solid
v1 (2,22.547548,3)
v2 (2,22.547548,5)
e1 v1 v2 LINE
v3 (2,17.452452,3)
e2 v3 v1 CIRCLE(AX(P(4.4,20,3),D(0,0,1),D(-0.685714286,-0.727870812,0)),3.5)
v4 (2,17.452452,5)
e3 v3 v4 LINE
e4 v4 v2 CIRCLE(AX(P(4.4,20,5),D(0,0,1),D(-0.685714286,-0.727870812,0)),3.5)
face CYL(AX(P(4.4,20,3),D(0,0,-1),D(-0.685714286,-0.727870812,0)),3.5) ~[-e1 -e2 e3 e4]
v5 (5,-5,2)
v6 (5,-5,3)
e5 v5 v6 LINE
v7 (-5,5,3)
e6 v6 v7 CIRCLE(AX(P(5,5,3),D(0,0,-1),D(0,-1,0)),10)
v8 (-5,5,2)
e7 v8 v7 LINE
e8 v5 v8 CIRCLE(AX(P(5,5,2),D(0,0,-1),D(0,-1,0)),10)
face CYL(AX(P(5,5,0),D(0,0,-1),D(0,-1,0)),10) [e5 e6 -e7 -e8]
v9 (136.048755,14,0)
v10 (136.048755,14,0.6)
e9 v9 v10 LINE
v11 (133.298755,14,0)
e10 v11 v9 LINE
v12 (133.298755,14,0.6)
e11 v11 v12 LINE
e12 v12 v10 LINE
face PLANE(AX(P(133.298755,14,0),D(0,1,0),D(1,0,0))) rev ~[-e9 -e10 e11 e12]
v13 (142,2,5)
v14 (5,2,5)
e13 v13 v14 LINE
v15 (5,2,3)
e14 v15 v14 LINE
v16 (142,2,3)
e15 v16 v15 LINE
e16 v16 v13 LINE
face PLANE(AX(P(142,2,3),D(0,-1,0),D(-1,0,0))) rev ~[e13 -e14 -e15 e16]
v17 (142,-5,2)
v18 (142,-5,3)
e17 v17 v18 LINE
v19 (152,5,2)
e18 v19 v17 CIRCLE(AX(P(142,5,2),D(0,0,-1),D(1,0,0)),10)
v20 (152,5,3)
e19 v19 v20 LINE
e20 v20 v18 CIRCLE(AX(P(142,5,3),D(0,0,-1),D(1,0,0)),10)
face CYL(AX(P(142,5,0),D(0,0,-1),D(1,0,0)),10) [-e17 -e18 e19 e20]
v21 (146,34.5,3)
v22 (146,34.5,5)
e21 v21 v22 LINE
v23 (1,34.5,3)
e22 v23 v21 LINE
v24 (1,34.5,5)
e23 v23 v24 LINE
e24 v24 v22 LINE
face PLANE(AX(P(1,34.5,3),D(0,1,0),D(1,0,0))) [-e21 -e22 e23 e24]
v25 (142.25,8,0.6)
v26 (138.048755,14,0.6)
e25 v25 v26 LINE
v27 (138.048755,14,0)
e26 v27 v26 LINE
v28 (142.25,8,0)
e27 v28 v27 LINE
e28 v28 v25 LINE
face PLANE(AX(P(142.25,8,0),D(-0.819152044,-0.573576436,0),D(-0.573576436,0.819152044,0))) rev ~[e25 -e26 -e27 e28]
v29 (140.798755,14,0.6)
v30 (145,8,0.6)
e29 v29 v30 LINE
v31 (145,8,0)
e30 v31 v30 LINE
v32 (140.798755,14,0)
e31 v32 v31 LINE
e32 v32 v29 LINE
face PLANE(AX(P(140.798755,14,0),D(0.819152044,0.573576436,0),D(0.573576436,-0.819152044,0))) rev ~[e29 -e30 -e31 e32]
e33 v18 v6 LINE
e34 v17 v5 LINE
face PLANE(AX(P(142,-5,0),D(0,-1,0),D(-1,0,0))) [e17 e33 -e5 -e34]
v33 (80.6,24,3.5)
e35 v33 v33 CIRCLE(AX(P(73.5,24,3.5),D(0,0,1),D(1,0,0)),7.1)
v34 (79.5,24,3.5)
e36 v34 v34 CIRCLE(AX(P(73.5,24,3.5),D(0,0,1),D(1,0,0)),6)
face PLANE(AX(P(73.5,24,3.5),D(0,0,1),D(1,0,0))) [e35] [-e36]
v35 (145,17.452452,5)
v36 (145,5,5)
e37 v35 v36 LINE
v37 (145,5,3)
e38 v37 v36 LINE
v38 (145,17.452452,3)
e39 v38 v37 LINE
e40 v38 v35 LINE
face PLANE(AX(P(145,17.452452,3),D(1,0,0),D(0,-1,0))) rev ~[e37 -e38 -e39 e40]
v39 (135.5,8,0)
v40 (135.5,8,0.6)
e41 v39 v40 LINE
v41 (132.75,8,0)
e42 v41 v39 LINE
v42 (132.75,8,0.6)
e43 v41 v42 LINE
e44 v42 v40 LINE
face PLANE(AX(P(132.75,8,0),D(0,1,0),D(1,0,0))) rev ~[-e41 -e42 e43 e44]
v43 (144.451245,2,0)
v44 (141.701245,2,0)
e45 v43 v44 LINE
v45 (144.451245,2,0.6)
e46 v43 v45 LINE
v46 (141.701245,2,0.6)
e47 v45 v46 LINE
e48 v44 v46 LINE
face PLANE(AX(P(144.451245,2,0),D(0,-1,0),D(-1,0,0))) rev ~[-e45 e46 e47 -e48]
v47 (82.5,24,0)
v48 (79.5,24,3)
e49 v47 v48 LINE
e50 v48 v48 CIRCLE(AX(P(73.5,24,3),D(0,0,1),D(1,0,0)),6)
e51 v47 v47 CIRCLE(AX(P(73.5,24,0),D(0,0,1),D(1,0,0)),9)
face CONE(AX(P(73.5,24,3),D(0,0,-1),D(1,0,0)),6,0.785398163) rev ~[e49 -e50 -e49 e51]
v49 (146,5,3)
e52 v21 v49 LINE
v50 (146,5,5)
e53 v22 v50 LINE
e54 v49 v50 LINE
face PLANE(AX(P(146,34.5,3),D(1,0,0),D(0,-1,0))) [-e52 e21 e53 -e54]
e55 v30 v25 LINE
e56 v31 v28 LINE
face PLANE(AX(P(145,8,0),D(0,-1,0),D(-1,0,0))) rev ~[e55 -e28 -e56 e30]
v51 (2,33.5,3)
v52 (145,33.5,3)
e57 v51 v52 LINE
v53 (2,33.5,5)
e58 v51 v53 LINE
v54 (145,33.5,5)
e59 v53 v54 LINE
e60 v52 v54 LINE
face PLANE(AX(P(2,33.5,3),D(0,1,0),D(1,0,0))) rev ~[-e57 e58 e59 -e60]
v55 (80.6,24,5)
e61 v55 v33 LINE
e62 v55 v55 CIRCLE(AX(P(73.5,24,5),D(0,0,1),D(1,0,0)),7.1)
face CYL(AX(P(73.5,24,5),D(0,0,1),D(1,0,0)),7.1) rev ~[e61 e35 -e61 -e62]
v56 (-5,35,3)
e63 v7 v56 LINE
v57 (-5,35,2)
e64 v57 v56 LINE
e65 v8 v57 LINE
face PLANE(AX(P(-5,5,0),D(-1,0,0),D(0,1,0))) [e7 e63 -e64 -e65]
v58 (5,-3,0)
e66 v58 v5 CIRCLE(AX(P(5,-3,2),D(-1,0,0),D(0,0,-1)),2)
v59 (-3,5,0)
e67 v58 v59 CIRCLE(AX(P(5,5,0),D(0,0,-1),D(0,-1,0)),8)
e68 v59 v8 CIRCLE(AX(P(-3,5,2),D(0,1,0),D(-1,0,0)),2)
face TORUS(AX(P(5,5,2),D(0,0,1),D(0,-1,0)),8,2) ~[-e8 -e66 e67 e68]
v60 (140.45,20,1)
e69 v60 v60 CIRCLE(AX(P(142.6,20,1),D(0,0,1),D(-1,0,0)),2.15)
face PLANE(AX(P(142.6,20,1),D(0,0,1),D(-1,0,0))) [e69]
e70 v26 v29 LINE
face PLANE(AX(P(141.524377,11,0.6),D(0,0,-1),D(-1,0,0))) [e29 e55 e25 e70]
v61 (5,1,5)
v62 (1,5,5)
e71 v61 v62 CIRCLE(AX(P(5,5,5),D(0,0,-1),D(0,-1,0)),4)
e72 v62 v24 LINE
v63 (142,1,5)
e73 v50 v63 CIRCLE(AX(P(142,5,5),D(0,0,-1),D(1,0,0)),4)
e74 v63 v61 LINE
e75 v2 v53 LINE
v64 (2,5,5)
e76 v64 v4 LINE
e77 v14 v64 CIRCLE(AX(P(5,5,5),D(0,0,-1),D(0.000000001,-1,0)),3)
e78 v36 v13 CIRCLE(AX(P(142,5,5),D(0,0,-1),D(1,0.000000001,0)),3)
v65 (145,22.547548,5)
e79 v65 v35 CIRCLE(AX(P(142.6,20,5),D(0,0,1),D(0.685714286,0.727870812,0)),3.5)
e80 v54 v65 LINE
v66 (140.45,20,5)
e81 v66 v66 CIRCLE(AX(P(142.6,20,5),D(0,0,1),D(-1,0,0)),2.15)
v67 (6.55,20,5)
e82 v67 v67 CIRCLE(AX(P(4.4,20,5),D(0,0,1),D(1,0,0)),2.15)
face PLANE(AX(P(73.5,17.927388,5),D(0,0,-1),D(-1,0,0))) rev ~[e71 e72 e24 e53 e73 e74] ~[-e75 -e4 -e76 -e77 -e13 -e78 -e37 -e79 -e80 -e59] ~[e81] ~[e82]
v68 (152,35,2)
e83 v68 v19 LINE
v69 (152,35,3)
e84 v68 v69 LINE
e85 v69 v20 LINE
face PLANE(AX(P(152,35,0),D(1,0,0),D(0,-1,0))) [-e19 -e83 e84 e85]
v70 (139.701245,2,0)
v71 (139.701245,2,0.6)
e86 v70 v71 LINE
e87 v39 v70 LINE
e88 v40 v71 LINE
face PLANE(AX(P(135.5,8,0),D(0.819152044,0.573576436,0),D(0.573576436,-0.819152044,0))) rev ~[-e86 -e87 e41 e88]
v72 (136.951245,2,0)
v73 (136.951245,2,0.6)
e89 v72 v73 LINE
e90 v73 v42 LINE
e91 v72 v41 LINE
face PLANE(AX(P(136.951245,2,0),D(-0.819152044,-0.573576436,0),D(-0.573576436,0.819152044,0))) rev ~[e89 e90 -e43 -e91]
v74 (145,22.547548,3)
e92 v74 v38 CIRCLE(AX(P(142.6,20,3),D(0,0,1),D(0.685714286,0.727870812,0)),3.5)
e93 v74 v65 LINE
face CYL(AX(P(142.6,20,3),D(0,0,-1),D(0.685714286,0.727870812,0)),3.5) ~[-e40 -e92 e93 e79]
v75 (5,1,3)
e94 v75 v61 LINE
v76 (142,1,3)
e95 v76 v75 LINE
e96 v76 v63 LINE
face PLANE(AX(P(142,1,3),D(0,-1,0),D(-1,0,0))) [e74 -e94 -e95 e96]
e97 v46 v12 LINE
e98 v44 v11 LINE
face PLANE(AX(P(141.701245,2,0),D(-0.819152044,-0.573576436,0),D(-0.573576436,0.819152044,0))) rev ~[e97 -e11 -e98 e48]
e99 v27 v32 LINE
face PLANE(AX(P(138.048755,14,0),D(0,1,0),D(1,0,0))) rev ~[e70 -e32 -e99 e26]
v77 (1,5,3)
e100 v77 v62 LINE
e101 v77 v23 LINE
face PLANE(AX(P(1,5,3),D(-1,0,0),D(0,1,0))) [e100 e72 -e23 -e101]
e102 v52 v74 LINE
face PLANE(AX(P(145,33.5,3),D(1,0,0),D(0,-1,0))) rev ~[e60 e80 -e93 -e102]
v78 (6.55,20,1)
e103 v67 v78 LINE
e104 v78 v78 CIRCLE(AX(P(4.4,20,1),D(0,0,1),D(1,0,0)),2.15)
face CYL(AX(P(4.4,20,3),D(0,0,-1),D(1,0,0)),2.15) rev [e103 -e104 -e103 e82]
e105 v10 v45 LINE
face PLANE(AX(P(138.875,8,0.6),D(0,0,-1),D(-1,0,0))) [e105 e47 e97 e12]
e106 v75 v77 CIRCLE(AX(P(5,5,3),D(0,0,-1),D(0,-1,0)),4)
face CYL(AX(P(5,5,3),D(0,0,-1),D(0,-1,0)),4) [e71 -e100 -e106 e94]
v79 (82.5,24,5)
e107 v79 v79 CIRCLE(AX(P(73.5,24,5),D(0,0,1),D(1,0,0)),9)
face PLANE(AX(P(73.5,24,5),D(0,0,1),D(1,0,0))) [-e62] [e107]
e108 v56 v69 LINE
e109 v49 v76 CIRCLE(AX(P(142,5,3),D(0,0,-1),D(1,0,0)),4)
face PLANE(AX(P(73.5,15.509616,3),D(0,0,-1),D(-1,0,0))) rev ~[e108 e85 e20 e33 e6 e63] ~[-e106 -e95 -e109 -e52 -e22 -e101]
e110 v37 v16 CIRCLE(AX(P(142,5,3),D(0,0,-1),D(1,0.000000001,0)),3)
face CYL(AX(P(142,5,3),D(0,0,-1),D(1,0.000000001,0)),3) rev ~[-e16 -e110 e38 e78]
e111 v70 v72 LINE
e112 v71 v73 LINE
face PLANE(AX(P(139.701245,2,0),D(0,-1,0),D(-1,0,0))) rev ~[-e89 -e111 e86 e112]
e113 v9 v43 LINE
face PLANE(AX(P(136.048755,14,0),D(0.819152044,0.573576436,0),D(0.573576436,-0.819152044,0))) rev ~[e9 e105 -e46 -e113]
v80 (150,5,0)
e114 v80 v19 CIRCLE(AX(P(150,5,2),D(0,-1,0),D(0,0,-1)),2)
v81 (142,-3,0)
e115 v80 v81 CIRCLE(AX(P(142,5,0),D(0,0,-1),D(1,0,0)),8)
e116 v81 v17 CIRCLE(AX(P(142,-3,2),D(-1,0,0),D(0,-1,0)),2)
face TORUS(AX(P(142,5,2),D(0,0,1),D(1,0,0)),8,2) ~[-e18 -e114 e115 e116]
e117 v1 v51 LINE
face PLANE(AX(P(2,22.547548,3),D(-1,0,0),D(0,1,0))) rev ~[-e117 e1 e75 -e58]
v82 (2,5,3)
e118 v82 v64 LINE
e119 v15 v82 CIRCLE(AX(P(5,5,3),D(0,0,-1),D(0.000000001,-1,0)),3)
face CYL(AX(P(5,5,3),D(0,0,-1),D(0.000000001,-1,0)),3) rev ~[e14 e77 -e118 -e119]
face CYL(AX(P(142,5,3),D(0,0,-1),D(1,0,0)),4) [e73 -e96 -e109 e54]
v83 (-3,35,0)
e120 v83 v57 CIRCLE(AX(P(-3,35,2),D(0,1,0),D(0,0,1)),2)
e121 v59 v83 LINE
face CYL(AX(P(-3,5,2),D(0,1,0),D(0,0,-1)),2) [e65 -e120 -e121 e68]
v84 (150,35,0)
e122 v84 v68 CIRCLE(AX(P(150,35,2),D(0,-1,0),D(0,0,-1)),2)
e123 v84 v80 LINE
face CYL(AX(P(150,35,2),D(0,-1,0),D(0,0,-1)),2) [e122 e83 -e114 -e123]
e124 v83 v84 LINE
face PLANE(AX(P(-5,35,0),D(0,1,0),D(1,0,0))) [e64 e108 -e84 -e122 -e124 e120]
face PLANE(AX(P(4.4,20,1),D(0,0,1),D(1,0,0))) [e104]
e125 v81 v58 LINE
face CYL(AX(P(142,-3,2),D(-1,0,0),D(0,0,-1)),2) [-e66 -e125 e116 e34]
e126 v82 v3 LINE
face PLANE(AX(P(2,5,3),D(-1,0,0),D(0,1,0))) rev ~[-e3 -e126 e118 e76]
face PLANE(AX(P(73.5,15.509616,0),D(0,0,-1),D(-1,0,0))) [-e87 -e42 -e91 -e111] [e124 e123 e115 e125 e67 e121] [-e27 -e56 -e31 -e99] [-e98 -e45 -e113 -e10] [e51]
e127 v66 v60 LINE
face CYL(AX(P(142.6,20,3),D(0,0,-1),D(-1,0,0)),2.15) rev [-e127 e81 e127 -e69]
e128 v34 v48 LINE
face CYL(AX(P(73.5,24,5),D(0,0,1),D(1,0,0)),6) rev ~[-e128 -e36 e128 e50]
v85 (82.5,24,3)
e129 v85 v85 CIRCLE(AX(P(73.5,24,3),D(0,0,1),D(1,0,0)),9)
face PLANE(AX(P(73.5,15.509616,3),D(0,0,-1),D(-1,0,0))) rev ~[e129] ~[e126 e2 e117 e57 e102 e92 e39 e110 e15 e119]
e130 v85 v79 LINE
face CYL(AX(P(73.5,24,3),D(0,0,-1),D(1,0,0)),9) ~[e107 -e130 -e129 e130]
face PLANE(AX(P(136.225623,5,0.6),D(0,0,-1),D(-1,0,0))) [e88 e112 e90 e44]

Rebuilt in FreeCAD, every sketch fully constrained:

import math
import FreeCAD as App
import Part
import Sketcher
from FreeCAD import Vector
Q = App.Units.Quantity


def edges_at(feature, points):
    """Names of the edges that pass closest to the given points."""
    edges = feature.Shape.Edges
    near = lambda p: min(range(len(edges)), key=lambda i: edges[i].distToShape(Part.Vertex(*p))[0])
    return sorted({f"Edge{near(p) + 1}" for p in points})


def add_polygon(sketch, points):
    """Adds a closed chain of lines whose ends are joined by coincident constraints."""
    first, n = sketch.GeometryCount, len(points)
    for a, b in zip(points, points[1:] + points[:1]):
        sketch.addGeometry(Part.LineSegment(App.Vector(*a, 0), App.Vector(*b, 0)), False)
    for i in range(n):
        sketch.addConstraint(Sketcher.Constraint("Coincident", first + i, 2, first + (i + 1) % n, 1))

doc = App.newDocument("Part")
body = doc.addObject("PartDesign::Body", "Body")

sketch1 = doc.addObject("Sketcher::SketchObject", "Sketch")
body.addObject(sketch1)
sketch1.AttachmentSupport = (doc.XY_Plane, [""])
sketch1.MapMode = "FlatFace"
sketch1.addGeometry([
    Part.LineSegment(Vector(152, 35, 0), Vector(-5, 35, 0)),
    Part.LineSegment(Vector(-5, 35, 0), Vector(-5, 5, 0)),
    Part.ArcOfCircle(Part.Circle(Vector(5, 5, 0), Vector(0, 0, 1), 10), math.radians(180), math.radians(270)),
    Part.LineSegment(Vector(5, -5, 0), Vector(142, -5, 0)),
    Part.ArcOfCircle(Part.Circle(Vector(142, 5, 0), Vector(0, 0, 1), 10), math.radians(-90), math.radians(0)),
    Part.LineSegment(Vector(152, 5, 0), Vector(152, 35, 0)),
], False)
sketch1.addConstraint([
    Sketcher.Constraint("Coincident", 0, 2, 1, 1),
    Sketcher.Constraint("Tangent", 1, 2, 2, 1),
    Sketcher.Constraint("Tangent", 2, 2, 3, 1),
    Sketcher.Constraint("Tangent", 3, 2, 4, 1),
    Sketcher.Constraint("Tangent", 4, 2, 5, 1),
    Sketcher.Constraint("Coincident", 5, 2, 0, 1),
    Sketcher.Constraint("Horizontal", 0),
    Sketcher.Constraint("Vertical", 1),
    Sketcher.Constraint("Horizontal", 3),
    Sketcher.Constraint("Vertical", 5),
    Sketcher.Constraint("Equal", 2, 4),
    Sketcher.Constraint("Symmetric", 1, 2, 2, 2, -1, 1),
    Sketcher.Constraint("Radius", 2, Q("10 mm")),
    Sketcher.Constraint("DistanceX", 0, 2, 0, 1, Q("157 mm")),
    Sketcher.Constraint("DistanceY", 1, 2, 1, 1, Q("30 mm")),
])
pad1 = doc.addObject("PartDesign::Pad", "Pad")
body.addObject(pad1)
pad1.Profile = sketch1
pad1.Length = 3

sketch2 = doc.addObject("Sketcher::SketchObject", "Sketch001")
body.addObject(sketch2)
sketch2.AttachmentSupport = (doc.XY_Plane, [""])
sketch2.MapMode = "FlatFace"
sketch2.AttachmentOffset = App.Placement(Vector(0, 0, 3), App.Rotation())
sketch2.addGeometry([
    Part.LineSegment(Vector(1, 34.5, 0), Vector(1, 5, 0)),
    Part.ArcOfCircle(Part.Circle(Vector(5, 5, 0), Vector(0, 0, 1), 4), math.radians(180), math.radians(270)),
    Part.LineSegment(Vector(5, 1, 0), Vector(142, 1, 0)),
    Part.ArcOfCircle(Part.Circle(Vector(142, 5, 0), Vector(0, 0, 1), 4), math.radians(-90), math.radians(0)),
    Part.LineSegment(Vector(146, 5, 0), Vector(146, 34.5, 0)),
    Part.LineSegment(Vector(146, 34.5, 0), Vector(1, 34.5, 0)),
    Part.Circle(Vector(142.6, 20, 0), Vector(0, 0, 1), 2.1),
    Part.LineSegment(Vector(2, 33.5, 0), Vector(145, 33.5, 0)),
    Part.LineSegment(Vector(145, 33.5, 0), Vector(145, 22.5, 0)),
    Part.ArcOfCircle(Part.Circle(Vector(142.6, 20, 0), Vector(0, 0, 1), 3.5), math.radians(47), math.radians(313)),
    Part.LineSegment(Vector(145, 17.5, 0), Vector(145, 5, 0)),
    Part.ArcOfCircle(Part.Circle(Vector(142, 5, 0), Vector(0, 0, 1), 3), math.radians(-90), math.radians(0)),
    Part.LineSegment(Vector(142, 2, 0), Vector(5, 2, 0)),
    Part.ArcOfCircle(Part.Circle(Vector(5, 5, 0), Vector(0, 0, 1), 3), math.radians(180), math.radians(270)),
    Part.LineSegment(Vector(2, 5, 0), Vector(2, 17.5, 0)),
    Part.ArcOfCircle(Part.Circle(Vector(4.4, 20, 0), Vector(0, 0, 1), 3.5), math.radians(-133), math.radians(133)),
    Part.LineSegment(Vector(2, 22.5, 0), Vector(2, 33.5, 0)),
    Part.Circle(Vector(4.4, 20, 0), Vector(0, 0, 1), 2.1),
], False)
sketch2.addConstraint([
    Sketcher.Constraint("Tangent", 0, 2, 1, 1),
    Sketcher.Constraint("Tangent", 1, 2, 2, 1),
    Sketcher.Constraint("Tangent", 2, 2, 3, 1),
    Sketcher.Constraint("Tangent", 3, 2, 4, 1),
    Sketcher.Constraint("Coincident", 4, 2, 5, 1),
    Sketcher.Constraint("Coincident", 5, 2, 0, 1),
    Sketcher.Constraint("Coincident", 7, 2, 8, 1),
    Sketcher.Constraint("Coincident", 8, 2, 9, 1),
    Sketcher.Constraint("Coincident", 9, 2, 10, 1),
    Sketcher.Constraint("Tangent", 10, 2, 11, 2),
    Sketcher.Constraint("Tangent", 11, 1, 12, 1),
    Sketcher.Constraint("Tangent", 12, 2, 13, 2),
    Sketcher.Constraint("Tangent", 13, 1, 14, 1),
    Sketcher.Constraint("Coincident", 14, 2, 15, 1),
    Sketcher.Constraint("Coincident", 15, 2, 16, 1),
    Sketcher.Constraint("Coincident", 16, 2, 7, 1),
    Sketcher.Constraint("Vertical", 0),
    Sketcher.Constraint("Horizontal", 2),
    Sketcher.Constraint("Vertical", 4),
    Sketcher.Constraint("Horizontal", 5),
    Sketcher.Constraint("Horizontal", 7),
    Sketcher.Constraint("Vertical", 8),
    Sketcher.Constraint("Vertical", 10),
    Sketcher.Constraint("Horizontal", 12),
    Sketcher.Constraint("Vertical", 14),
    Sketcher.Constraint("Vertical", 16),
    Sketcher.Constraint("Coincident", 9, 3, 6, 3),
    Sketcher.Constraint("Coincident", 11, 3, 3, 3),
    Sketcher.Constraint("Coincident", 13, 3, 1, 3),
    Sketcher.Constraint("Coincident", 17, 3, 15, 3),
    Sketcher.Constraint("Equal", 1, 3),
    Sketcher.Constraint("Equal", 9, 15),
    Sketcher.Constraint("Equal", 6, 17),
    Sketcher.Constraint("Horizontal", 9, 3, 15, 3),
    Sketcher.Constraint("Horizontal", 9, 2, 14, 2),
    Sketcher.Constraint("Horizontal", 8, 2, 15, 2),
    Sketcher.Constraint("Vertical", 8, 2, 9, 2),
    Sketcher.Constraint("Radius", 1, Q("4 mm")),
    Sketcher.Constraint("Radius", 11, Q("3 mm")),
    Sketcher.Constraint("Diameter", 6, Q("4.3 mm")),
    Sketcher.Constraint("Radius", 9, Q("3.5 mm")),
    Sketcher.Constraint("DistanceX", 2, 1, 2, 2, Q("137 mm")),
    Sketcher.Constraint("DistanceY", 0, 2, 0, 1, Q("29.5 mm")),
    Sketcher.Constraint("DistanceX", -1, 1, 1, 3, Q("5 mm")),
    Sketcher.Constraint("DistanceY", -1, 1, 1, 3, Q("5 mm")),
    Sketcher.Constraint("DistanceY", -1, 1, 6, 3, Q("20 mm")),
    Sketcher.Constraint("DistanceY", 7, 2, 4, 2, Q("1 mm")),
    Sketcher.Constraint("DistanceX", -1, 1, 6, 3, Q("142.6 mm")),
])
pad2 = doc.addObject("PartDesign::Pad", "Pad001")
body.addObject(pad2)
pad2.Profile = sketch2
pad2.Length = 2

sketch3 = doc.addObject("Sketcher::SketchObject", "Sketch002")
body.addObject(sketch3)
sketch3.AttachmentSupport = (doc.XY_Plane, [""])
sketch3.MapMode = "FlatFace"
sketch3.AttachmentOffset = App.Placement(Vector(0, 0, 1), App.Rotation())
sketch3.addGeometry([
    Part.Circle(Vector(4.4, 20, 0), Vector(0, 0, 1), 2.1),
    Part.Circle(Vector(142.6, 20, 0), Vector(0, 0, 1), 2.1),
], False)
sketch3.addConstraint([
    Sketcher.Constraint("Equal", 0, 1),
    Sketcher.Constraint("Horizontal", 0, 3, 1, 3),
    Sketcher.Constraint("Diameter", 0, Q("4.3 mm")),
    Sketcher.Constraint("DistanceY", -1, 1, 0, 3, Q("20 mm")),
    Sketcher.Constraint("DistanceX", -1, 1, 0, 3, Q("4.4 mm")),
    Sketcher.Constraint("DistanceX", -1, 1, 1, 3, Q("142.6 mm")),
])
pocket1 = doc.addObject("PartDesign::Pocket", "Pocket")
body.addObject(pocket1)
pocket1.Profile = sketch3
pocket1.Length = 2
pocket1.Reversed = True
doc.recompute()

fillet = doc.addObject("PartDesign::Fillet", "Fillet")
body.addObject(fillet)
fillet.Base = (pocket1, edges_at(pocket1, [
    (152, 20, 0),
    (149.071, -2.071, 0),
    (73.5, -5, 0),
    (-2.071, -2.071, 0),
    (-5, 20, 0),
]))
fillet.Radius = 2

sketch4 = doc.addObject("Sketcher::SketchObject", "Sketch003")
body.addObject(sketch4)
sketch4.AttachmentSupport = (doc.XY_Plane, [""])
sketch4.MapMode = "FlatFace"
add_polygon(sketch4, [(140.8, 14), (145, 8), (142.2, 8), (138, 14)])
add_polygon(sketch4, [(136, 14), (144.5, 2), (141.7, 2), (133.3, 14)])
add_polygon(sketch4, [(135.5, 8), (139.7, 2), (137, 2), (132.8, 8)])
sketch4.addConstraint([
    Sketcher.Constraint("Horizontal", 1),
    Sketcher.Constraint("Horizontal", 3),
    Sketcher.Constraint("Horizontal", 5),
    Sketcher.Constraint("Horizontal", 7),
    Sketcher.Constraint("Horizontal", 9),
    Sketcher.Constraint("Horizontal", 11),
    Sketcher.Constraint("Parallel", 0, 2),
    Sketcher.Constraint("Parallel", 2, 4),
    Sketcher.Constraint("Parallel", 4, 6),
    Sketcher.Constraint("Parallel", 6, 8),
    Sketcher.Constraint("Parallel", 8, 10),
    Sketcher.Constraint("Horizontal", 3, 2, 6, 2),
    Sketcher.Constraint("Horizontal", 5, 2, 8, 2),
    Sketcher.Constraint("Horizontal", 1, 2, 10, 2),
    Sketcher.Constraint("Equal", 3, 5),
    Sketcher.Constraint("Equal", 7, 9),
    Sketcher.Constraint("Equal", 2, 8),
    Sketcher.Constraint("Angle", 0, Q("-55 deg")),
    Sketcher.Constraint("DistanceX", -1, 1, 0, 2, Q("145 mm")),
    Sketcher.Constraint("DistanceY", -1, 1, 0, 2, Q("8 mm")),
    Sketcher.Constraint("DistanceY", -1, 1, 2, 2, Q("14 mm")),
    Sketcher.Constraint("DistanceX", 7, 2, 2, 2, Q("2 mm")),
    Sketcher.Constraint("DistanceX", 8, 2, 5, 2, Q("2 mm")),
    Sketcher.Constraint("DistanceX", 1, 2, 1, 1, Q("2.75 mm")),
])
pocket2 = doc.addObject("PartDesign::Pocket", "Pocket001")
body.addObject(pocket2)
pocket2.Profile = sketch4
pocket2.Length = 0.6
pocket2.Reversed = True

sketch5 = doc.addObject("Sketcher::SketchObject", "Sketch004")
body.addObject(sketch5)
sketch5.AttachmentSupport = (doc.XY_Plane, [""])
sketch5.MapMode = "FlatFace"
sketch5.AttachmentOffset = App.Placement(Vector(0, 0, 3), App.Rotation())
sketch5.addGeometry(Part.Circle(Vector(74, 24, 0), Vector(0, 0, 1), 9), False)
sketch5.addConstraint([
    Sketcher.Constraint("Diameter", 0, Q("18 mm")),
    Sketcher.Constraint("DistanceY", -1, 1, 0, 3, Q("24 mm")),
    Sketcher.Constraint("DistanceX", -1, 1, 0, 3, Q("73.5 mm")),
])
pad3 = doc.addObject("PartDesign::Pad", "Pad002")
body.addObject(pad3)
pad3.Profile = sketch5
pad3.Length = 2

sketch6 = doc.addObject("Sketcher::SketchObject", "Sketch005")
body.addObject(sketch6)
sketch6.AttachmentSupport = (doc.XY_Plane, [""])
sketch6.MapMode = "FlatFace"
sketch6.AttachmentOffset = App.Placement(Vector(0, 0, 5), App.Rotation())
sketch6.addGeometry(Part.Circle(Vector(74, 24, 0), Vector(0, 0, 1), 7), False)
sketch6.addConstraint([
    Sketcher.Constraint("Diameter", 0, Q("14.2 mm")),
    Sketcher.Constraint("DistanceY", -1, 1, 0, 3, Q("24 mm")),
    Sketcher.Constraint("DistanceX", -1, 1, 0, 3, Q("73.5 mm")),
])
pocket3 = doc.addObject("PartDesign::Pocket", "Pocket002")
body.addObject(pocket3)
pocket3.Profile = sketch6
pocket3.Length = 1.5

sketch7 = doc.addObject("Sketcher::SketchObject", "Sketch006")
body.addObject(sketch7)
sketch7.AttachmentSupport = (doc.XY_Plane, [""])
sketch7.MapMode = "FlatFace"
sketch7.AttachmentOffset = App.Placement(Vector(0, 0, 5), App.Rotation())
sketch7.addGeometry(Part.Circle(Vector(74, 24, 0), Vector(0, 0, 1), 6), False)
sketch7.addConstraint([
    Sketcher.Constraint("Diameter", 0, Q("12 mm")),
    Sketcher.Constraint("DistanceY", -1, 1, 0, 3, Q("24 mm")),
    Sketcher.Constraint("DistanceX", -1, 1, 0, 3, Q("73.5 mm")),
])
pocket4 = doc.addObject("PartDesign::Pocket", "Pocket003")
body.addObject(pocket4)
pocket4.Profile = sketch7
pocket4.Type = "ThroughAll"
doc.recompute()

chamfer = doc.addObject("PartDesign::Chamfer", "Chamfer")
body.addObject(chamfer)
chamfer.Base = (pocket4, edges_at(pocket4, [(67.5, 24, 0)]))
chamfer.Size = 3

doc.recompute()
